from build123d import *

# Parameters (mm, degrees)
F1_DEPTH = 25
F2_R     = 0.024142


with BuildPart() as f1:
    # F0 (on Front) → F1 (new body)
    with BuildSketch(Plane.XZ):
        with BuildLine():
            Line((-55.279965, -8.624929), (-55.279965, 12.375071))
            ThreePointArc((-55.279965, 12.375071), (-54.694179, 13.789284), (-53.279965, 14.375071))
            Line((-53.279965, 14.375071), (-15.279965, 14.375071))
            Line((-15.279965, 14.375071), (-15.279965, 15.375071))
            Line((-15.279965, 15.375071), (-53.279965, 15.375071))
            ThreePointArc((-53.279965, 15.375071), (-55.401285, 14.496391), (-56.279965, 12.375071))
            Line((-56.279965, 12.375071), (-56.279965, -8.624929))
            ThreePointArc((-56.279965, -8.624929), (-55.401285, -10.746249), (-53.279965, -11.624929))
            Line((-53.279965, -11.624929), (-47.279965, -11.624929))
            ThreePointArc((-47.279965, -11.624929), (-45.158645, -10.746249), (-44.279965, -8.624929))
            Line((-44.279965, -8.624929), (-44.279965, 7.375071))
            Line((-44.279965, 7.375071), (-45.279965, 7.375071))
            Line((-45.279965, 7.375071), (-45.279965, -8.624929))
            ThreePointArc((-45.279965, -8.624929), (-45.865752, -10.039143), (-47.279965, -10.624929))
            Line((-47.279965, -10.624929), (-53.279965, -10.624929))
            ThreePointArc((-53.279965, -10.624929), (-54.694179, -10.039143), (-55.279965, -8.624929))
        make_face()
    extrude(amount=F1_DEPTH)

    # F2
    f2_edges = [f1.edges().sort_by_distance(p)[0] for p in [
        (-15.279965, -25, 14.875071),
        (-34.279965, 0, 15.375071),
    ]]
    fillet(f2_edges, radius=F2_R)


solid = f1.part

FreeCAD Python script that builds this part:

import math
import FreeCAD as App
import Part
import Sketcher
from FreeCAD import Vector
Q = App.Units.Quantity


def edges_at(feature, points):
    """Names of the edges that pass closest to the given points."""
    edges = feature.Shape.Edges
    near = lambda p: min(range(len(edges)), key=lambda i: edges[i].distToShape(Part.Vertex(*p))[0])
    return sorted({f"Edge{near(p) + 1}" for p in points})

doc = App.newDocument("Part")
body = doc.addObject("PartDesign::Body", "Body")

sketch1 = body.newObject("Sketcher::SketchObject", "Sketch")
sketch1.AttachmentSupport = (doc.getObject("XZ_Plane"), [""])
sketch1.MapMode = "FlatFace"
sketch1.addGeometry(Part.LineSegment(Vector(-55.279965, -8.624929, 0), Vector(-55.279965, 12.375071, 0)), False)
sketch1.addGeometry(Part.ArcOfCircle(Part.Circle(Vector(-53.279965, 12.375071, 0), Vector(0, 0, 1), 2), math.radians(90.000006), math.radians(179.999994)), False)
sketch1.addGeometry(Part.LineSegment(Vector(-53.279965, 14.375071, 0), Vector(-15.279965, 14.375071, 0)), False)
sketch1.addGeometry(Part.LineSegment(Vector(-15.279965, 14.375071, 0), Vector(-15.279965, 15.375071, 0)), False)
sketch1.addGeometry(Part.LineSegment(Vector(-15.279965, 15.375071, 0), Vector(-53.279965, 15.375071, 0)), False)
sketch1.addGeometry(Part.ArcOfCircle(Part.Circle(Vector(-53.279964, 12.37507, 0), Vector(0, 0, 1), 3.000001), math.radians(90.000022), math.radians(179.999978)), False)
sketch1.addGeometry(Part.LineSegment(Vector(-56.279965, 12.375071, 0), Vector(-56.279965, -8.624929, 0)), False)
sketch1.addGeometry(Part.ArcOfCircle(Part.Circle(Vector(-53.279964, -8.624928, 0), Vector(0, 0, 1), 3.000001), math.radians(-179.999978), math.radians(-90.000022)), False)
sketch1.addGeometry(Part.LineSegment(Vector(-53.279965, -11.624929, 0), Vector(-47.279965, -11.624929, 0)), False)
sketch1.addGeometry(Part.ArcOfCircle(Part.Circle(Vector(-47.279966, -8.624928, 0), Vector(0, 0, 1), 3.000001), math.radians(-89.999978), math.radians(-0.000022)), False)
sketch1.addGeometry(Part.LineSegment(Vector(-44.279965, -8.624929, 0), Vector(-44.279965, 7.375071, 0)), False)
sketch1.addGeometry(Part.LineSegment(Vector(-44.279965, 7.375071, 0), Vector(-45.279965, 7.375071, 0)), False)
sketch1.addGeometry(Part.LineSegment(Vector(-45.279965, 7.375071, 0), Vector(-45.279965, -8.624929, 0)), False)
sketch1.addGeometry(Part.ArcOfCircle(Part.Circle(Vector(-47.279965, -8.624929, 0), Vector(0, 0, 1), 2), math.radians(-89.999994), math.radians(-0.000006)), False)
sketch1.addGeometry(Part.LineSegment(Vector(-47.279965, -10.624929, 0), Vector(-53.279965, -10.624929, 0)), False)
sketch1.addGeometry(Part.ArcOfCircle(Part.Circle(Vector(-53.279966, -8.62493, 0), Vector(0, 0, 1), 1.999999), math.radians(179.999957), math.radians(270.000043)), False)
sketch1.addConstraint(Sketcher.Constraint("Tangent", 0, 2, 1, 2))
sketch1.addConstraint(Sketcher.Constraint("Tangent", 1, 1, 2, 1))
sketch1.addConstraint(Sketcher.Constraint("Coincident", 2, 2, 3, 1))
sketch1.addConstraint(Sketcher.Constraint("Coincident", 3, 2, 4, 1))
sketch1.addConstraint(Sketcher.Constraint("Tangent", 4, 2, 5, 1))
sketch1.addConstraint(Sketcher.Constraint("Tangent", 5, 2, 6, 1))
sketch1.addConstraint(Sketcher.Constraint("Tangent", 6, 2, 7, 1))
sketch1.addConstraint(Sketcher.Constraint("Tangent", 7, 2, 8, 1))
sketch1.addConstraint(Sketcher.Constraint("Tangent", 8, 2, 9, 1))
sketch1.addConstraint(Sketcher.Constraint("Tangent", 9, 2, 10, 1))
sketch1.addConstraint(Sketcher.Constraint("Coincident", 10, 2, 11, 1))
sketch1.addConstraint(Sketcher.Constraint("Coincident", 11, 2, 12, 1))
sketch1.addConstraint(Sketcher.Constraint("Tangent", 12, 2, 13, 2))
sketch1.addConstraint(Sketcher.Constraint("Tangent", 13, 1, 14, 1))
sketch1.addConstraint(Sketcher.Constraint("Tangent", 14, 2, 15, 2))
sketch1.addConstraint(Sketcher.Constraint("Tangent", 15, 1, 0, 1))
sketch1.addConstraint(Sketcher.Constraint("Vertical", 0))
sketch1.addConstraint(Sketcher.Constraint("Horizontal", 2))
sketch1.addConstraint(Sketcher.Constraint("Vertical", 3))
sketch1.addConstraint(Sketcher.Constraint("Horizontal", 4))
sketch1.addConstraint(Sketcher.Constraint("Vertical", 6))
sketch1.addConstraint(Sketcher.Constraint("Horizontal", 8))
sketch1.addConstraint(Sketcher.Constraint("Vertical", 10))
sketch1.addConstraint(Sketcher.Constraint("Horizontal", 11))
sketch1.addConstraint(Sketcher.Constraint("Vertical", 12))
sketch1.addConstraint(Sketcher.Constraint("Horizontal", 14))
sketch1.addConstraint(Sketcher.Constraint("Coincident", 5, 3, 1, 3))
sketch1.addConstraint(Sketcher.Constraint("Coincident", 13, 3, 9, 3))
sketch1.addConstraint(Sketcher.Constraint("Coincident", 15, 3, 7, 3))
sketch1.addConstraint(Sketcher.Constraint("Equal", 5, 7))
sketch1.addConstraint(Sketcher.Constraint("Equal", 7, 9))
sketch1.addConstraint(Sketcher.Constraint("Radius", 1, Q("2 mm")))
sketch1.addConstraint(Sketcher.Constraint("Radius", 5, Q("3.000001 mm")))
sketch1.addConstraint(Sketcher.Constraint("DistanceX", 2, 1, 2, 2, Q("38 mm")))
sketch1.addConstraint(Sketcher.Constraint("DistanceX", 8, 1, 8, 2, Q("6 mm")))
sketch1.addConstraint(Sketcher.Constraint("DistanceY", 0, 1, 0, 2, Q("21 mm")))
sketch1.addConstraint(Sketcher.Constraint("DistanceY", 10, 1, 10, 2, Q("16 mm")))
sketch1.addConstraint(Sketcher.Constraint("DistanceY", -1, 1, 1, 3, Q("12.375071 mm")))
sketch1.addConstraint(Sketcher.Constraint("DistanceX", 1, 3, -1, 1, Q("53.279965 mm")))
pad1 = body.newObject("PartDesign::Pad", "Pad")
pad1.Profile = sketch1
pad1.Length = 25
doc.recompute()

fillet = body.newObject("PartDesign::Fillet", "Fillet")
fillet.Base = (pad1, edges_at(pad1, [(-15.28, -25, 14.875), (-34.28, 0, 15.375)]))
fillet.Radius = 0.024142

doc.recompute()
